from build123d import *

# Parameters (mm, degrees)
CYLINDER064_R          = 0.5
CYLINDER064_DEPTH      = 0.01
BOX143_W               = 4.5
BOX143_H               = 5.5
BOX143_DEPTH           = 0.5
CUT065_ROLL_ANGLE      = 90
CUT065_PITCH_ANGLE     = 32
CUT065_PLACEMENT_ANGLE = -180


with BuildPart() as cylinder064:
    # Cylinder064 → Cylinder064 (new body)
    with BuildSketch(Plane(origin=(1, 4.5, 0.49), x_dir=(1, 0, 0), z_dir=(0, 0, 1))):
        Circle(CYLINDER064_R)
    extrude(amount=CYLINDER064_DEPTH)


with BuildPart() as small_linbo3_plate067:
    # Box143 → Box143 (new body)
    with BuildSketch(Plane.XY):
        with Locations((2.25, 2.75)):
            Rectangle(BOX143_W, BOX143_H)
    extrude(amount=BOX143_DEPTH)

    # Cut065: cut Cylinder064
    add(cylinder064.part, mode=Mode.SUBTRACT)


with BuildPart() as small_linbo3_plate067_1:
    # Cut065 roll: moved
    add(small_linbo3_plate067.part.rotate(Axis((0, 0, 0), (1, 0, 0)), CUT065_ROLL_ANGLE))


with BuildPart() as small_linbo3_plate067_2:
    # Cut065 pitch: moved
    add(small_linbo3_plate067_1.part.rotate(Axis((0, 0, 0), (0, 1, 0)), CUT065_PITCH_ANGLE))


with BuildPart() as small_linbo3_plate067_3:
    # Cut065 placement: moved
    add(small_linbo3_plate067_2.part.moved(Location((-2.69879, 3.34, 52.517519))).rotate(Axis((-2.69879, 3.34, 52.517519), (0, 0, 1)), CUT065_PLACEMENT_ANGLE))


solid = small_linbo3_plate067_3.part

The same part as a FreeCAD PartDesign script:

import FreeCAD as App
import Part
import Sketcher

V = App.Vector
Q = App.Units.Quantity

doc = App.newDocument("Part")
params = doc.addObject("Spreadsheet::Sheet", "Params")
for row, (alias, value) in enumerate([
    ("sketch1_diameter", "1 mm"),
    ("pad1_length", "0.01 mm"),
    ("sketch2_width", "4.5 mm"),
    ("sketch2_height", "5.5 mm"),
    ("pad2_length", "0.5 mm"),
], start=1):
    params.set(f"A{row}", alias)
    params.set(f"B{row}", "=" + value)
    params.setAlias(f"B{row}", alias)

body = doc.addObject("PartDesign::Body", "Body")

# Sketch on XY plane
sketch1 = doc.addObject("Sketcher::SketchObject", "Sketch")
body.addObject(sketch1)
sketch1.AttachmentSupport = (doc.XY_Plane, [""])
sketch1.MapMode = "FlatFace"
sketch1.AttachmentOffset = App.Placement(V(0, 0, 0.49), App.Rotation())
sketch1.addGeometry(Part.Circle(V(1, 4.5, 0), V(0, 0, 1), 0.5), False)
sketch1.addConstraint([
    Sketcher.Constraint("Diameter", 0, Q("1 mm")),
    Sketcher.Constraint("DistanceX", -1, 1, 0, 3, Q("1 mm")),
    Sketcher.Constraint("DistanceY", -1, 1, 0, 3, Q("4.5 mm")),
])
sketch1.setExpression("Constraints[0]", "Params.sketch1_diameter")
pad1 = doc.addObject("PartDesign::Pad", "Pad")
body.addObject(pad1)
pad1.Profile = sketch1
pad1.setExpression("Length", "Params.pad1_length")
body2 = doc.addObject("PartDesign::Body", "Body001")

# Sketch on XY plane
sketch2 = doc.addObject("Sketcher::SketchObject", "Sketch001")
body2.addObject(sketch2)
sketch2.AttachmentSupport = (doc.getObject("XY_Plane001"), [""])
sketch2.MapMode = "FlatFace"
sketch2.addGeometry([
    Part.LineSegment(V(0, 5.5, 0), V(0, 0, 0)),
    Part.LineSegment(V(0, 0, 0), V(4.5, 0, 0)),
    Part.LineSegment(V(4.5, 0, 0), V(4.5, 5.5, 0)),
    Part.LineSegment(V(4.5, 5.5, 0), V(0, 5.5, 0)),
], False)
sketch2.addConstraint([
    Sketcher.Constraint("Coincident", 0, 2, 1, 1),
    Sketcher.Constraint("Coincident", 1, 2, 2, 1),
    Sketcher.Constraint("Coincident", 2, 2, 3, 1),
    Sketcher.Constraint("Coincident", 3, 2, 0, 1),
    Sketcher.Constraint("Vertical", 0),
    Sketcher.Constraint("Horizontal", 1),
    Sketcher.Constraint("Vertical", 2),
    Sketcher.Constraint("Horizontal", 3),
    Sketcher.Constraint("Coincident", 0, 2, -1, 1),
    Sketcher.Constraint("DistanceX", 1, 1, 1, 2, Q("4.5 mm")),
    Sketcher.Constraint("DistanceY", 0, 2, 0, 1, Q("5.5 mm")),
])
sketch2.setExpression("Constraints[9]", "Params.sketch2_width")
sketch2.setExpression("Constraints[10]", "Params.sketch2_height")
pad2 = doc.addObject("PartDesign::Pad", "Pad001")
body2.addObject(pad2)
pad2.Profile = sketch2
pad2.setExpression("Length", "Params.pad2_length")
doc.recompute()

boolean = doc.addObject("PartDesign::Boolean", "Boolean")
body2.addObject(boolean)
boolean.Type = "Cut"
boolean.addObjects([body])
body3 = doc.addObject("PartDesign::Body", "Body002")
doc.recompute()

body2.Placement = App.Placement(V(0, 0, 0), App.Rotation(V(1, 0, 0), 90))
boolean2 = doc.addObject("PartDesign::Boolean", "Boolean001")
body3.addObject(boolean2)
boolean2.Type = "Fuse"
boolean2.addObjects([body2])
body4 = doc.addObject("PartDesign::Body", "Body003")
doc.recompute()

body3.Placement = App.Placement(V(0, 0, 0), App.Rotation(V(0, 1, 0), 32))
boolean3 = doc.addObject("PartDesign::Boolean", "Boolean002")
body4.addObject(boolean3)
boolean3.Type = "Fuse"
boolean3.addObjects([body3])
body5 = doc.addObject("PartDesign::Body", "Body004")
doc.recompute()

body4.Placement = App.Placement(V(-2.69879, 3.34, 52.517519), App.Rotation(V(0, 0, 1), 180))
boolean4 = doc.addObject("PartDesign::Boolean", "Boolean003")
body5.addObject(boolean4)
boolean4.Type = "Fuse"
boolean4.addObjects([body4])

doc.recompute()
